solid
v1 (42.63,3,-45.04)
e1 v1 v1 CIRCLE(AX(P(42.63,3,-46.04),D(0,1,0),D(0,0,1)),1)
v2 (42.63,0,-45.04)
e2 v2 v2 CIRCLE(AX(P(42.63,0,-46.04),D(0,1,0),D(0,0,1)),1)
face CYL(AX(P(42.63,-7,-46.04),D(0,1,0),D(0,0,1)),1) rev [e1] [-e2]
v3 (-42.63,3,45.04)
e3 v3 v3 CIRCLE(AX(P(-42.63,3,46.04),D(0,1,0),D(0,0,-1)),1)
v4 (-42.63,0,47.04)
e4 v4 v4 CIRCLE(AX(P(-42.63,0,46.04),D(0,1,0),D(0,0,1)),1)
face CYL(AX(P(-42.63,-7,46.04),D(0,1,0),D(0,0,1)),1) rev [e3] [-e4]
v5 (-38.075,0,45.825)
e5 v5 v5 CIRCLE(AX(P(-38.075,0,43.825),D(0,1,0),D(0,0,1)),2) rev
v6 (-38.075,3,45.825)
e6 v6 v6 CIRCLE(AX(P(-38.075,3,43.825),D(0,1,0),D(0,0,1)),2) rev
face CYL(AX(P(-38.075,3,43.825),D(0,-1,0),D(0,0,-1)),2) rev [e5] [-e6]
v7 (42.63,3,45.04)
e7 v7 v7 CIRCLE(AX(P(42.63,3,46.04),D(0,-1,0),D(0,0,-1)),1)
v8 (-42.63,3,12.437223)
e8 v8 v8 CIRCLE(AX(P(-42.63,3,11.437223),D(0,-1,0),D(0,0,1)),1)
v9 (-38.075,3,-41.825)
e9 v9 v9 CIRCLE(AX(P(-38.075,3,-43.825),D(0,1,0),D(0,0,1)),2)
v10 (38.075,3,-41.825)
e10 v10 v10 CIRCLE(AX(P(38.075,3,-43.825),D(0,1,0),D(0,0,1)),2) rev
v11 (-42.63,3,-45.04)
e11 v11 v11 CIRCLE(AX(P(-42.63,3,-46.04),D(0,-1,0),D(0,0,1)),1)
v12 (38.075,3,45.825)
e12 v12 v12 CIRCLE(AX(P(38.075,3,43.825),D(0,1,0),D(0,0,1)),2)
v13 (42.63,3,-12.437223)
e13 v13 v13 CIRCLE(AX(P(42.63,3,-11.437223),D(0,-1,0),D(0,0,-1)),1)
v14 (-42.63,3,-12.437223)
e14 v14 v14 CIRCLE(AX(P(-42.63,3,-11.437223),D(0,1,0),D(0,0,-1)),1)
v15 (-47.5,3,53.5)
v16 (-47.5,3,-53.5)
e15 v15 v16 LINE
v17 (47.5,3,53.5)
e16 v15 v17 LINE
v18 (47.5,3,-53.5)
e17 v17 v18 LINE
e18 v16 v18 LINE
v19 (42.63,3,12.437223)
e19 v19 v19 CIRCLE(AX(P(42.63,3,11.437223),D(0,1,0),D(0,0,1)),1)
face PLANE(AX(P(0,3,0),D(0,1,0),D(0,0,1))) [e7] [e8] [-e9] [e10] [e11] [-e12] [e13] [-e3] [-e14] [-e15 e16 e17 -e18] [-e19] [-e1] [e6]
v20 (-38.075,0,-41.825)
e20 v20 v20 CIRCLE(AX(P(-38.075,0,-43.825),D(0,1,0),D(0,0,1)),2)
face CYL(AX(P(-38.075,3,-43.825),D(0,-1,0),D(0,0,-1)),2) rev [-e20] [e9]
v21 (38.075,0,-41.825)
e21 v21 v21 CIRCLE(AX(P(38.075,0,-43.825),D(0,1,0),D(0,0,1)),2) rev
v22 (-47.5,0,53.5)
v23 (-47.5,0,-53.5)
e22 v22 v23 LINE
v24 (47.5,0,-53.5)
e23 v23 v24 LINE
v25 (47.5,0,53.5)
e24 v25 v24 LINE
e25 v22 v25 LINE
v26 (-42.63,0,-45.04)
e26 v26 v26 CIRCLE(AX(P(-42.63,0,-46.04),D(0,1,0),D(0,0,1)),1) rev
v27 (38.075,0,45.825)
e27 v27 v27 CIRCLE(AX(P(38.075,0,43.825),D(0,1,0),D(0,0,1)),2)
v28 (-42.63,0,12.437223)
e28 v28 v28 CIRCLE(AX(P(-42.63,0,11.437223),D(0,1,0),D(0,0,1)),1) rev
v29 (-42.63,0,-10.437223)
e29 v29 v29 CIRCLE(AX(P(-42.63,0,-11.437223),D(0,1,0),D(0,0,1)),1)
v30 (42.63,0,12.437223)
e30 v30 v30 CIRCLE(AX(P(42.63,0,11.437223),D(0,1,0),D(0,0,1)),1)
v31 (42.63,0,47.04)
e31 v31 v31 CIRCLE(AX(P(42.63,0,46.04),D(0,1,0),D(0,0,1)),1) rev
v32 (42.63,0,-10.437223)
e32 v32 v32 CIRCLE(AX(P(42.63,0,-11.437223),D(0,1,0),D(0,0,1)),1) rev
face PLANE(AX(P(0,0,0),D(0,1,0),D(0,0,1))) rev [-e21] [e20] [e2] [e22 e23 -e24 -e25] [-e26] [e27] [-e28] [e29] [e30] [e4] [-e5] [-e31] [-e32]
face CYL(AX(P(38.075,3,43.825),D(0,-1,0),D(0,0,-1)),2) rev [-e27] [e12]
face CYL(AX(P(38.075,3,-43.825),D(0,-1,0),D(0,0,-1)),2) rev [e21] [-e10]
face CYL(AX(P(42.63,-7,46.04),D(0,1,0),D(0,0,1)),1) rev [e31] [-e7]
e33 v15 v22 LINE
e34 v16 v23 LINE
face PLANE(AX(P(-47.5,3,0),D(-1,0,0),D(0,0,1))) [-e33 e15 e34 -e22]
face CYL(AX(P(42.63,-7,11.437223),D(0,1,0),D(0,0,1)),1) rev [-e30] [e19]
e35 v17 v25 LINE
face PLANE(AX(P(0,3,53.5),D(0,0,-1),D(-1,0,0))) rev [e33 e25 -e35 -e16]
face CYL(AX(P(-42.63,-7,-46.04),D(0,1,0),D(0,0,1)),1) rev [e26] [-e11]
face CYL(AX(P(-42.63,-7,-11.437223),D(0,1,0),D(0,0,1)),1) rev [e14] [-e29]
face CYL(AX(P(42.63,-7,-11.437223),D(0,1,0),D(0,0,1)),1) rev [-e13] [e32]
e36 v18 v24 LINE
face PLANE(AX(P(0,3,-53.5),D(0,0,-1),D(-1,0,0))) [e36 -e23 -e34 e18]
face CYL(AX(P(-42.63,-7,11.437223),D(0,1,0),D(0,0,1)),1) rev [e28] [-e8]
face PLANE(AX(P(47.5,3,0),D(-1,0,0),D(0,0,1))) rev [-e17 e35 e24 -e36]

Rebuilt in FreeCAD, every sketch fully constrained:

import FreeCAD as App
import Part
import Sketcher

doc = App.newDocument("Part")
body = doc.addObject("PartDesign::Body", "Body")

# Sketch on XZ plane
sketch1 = body.newObject("Sketcher::SketchObject", "Sketch")
sketch1.AttachmentSupport = (doc.getObject("XZ_Plane"), [""])
sketch1.MapMode = "FlatFace"
sketch1.addGeometry(Part.LineSegment(App.Vector(-47.5, -53.5, 0), App.Vector(-47.5, 53.5, 0)), False)
sketch1.addGeometry(Part.LineSegment(App.Vector(-47.5, 53.5, 0), App.Vector(47.5, 53.5, 0)), False)
sketch1.addGeometry(Part.LineSegment(App.Vector(47.5, 53.5, 0), App.Vector(47.5, -53.5, 0)), False)
sketch1.addGeometry(Part.LineSegment(App.Vector(47.5, -53.5, 0), App.Vector(-47.5, -53.5, 0)), False)
sketch1.addGeometry(Part.Circle(App.Vector(-38.1, 43.8, 0), App.Vector(0, 0, 1), 2), False)
sketch1.addGeometry(Part.Circle(App.Vector(38.1, 43.8, 0), App.Vector(0, 0, 1), 2), False)
sketch1.addGeometry(Part.Circle(App.Vector(-38.1, -43.8, 0), App.Vector(0, 0, 1), 2), False)
sketch1.addGeometry(Part.Circle(App.Vector(38.1, -43.8, 0), App.Vector(0, 0, 1), 2), False)
sketch1.addConstraint(Sketcher.Constraint("Coincident", 0, 2, 1, 1))
sketch1.addConstraint(Sketcher.Constraint("Coincident", 1, 2, 2, 1))
sketch1.addConstraint(Sketcher.Constraint("Coincident", 2, 2, 3, 1))
sketch1.addConstraint(Sketcher.Constraint("Coincident", 3, 2, 0, 1))
sketch1.addConstraint(Sketcher.Constraint("Vertical", 0))
sketch1.addConstraint(Sketcher.Constraint("Horizontal", 1))
sketch1.addConstraint(Sketcher.Constraint("Vertical", 2))
sketch1.addConstraint(Sketcher.Constraint("Horizontal", 3))
sketch1.addConstraint(Sketcher.Constraint("Equal", 4, 5))
sketch1.addConstraint(Sketcher.Constraint("Equal", 5, 6))
sketch1.addConstraint(Sketcher.Constraint("Equal", 6, 7))
sketch1.addConstraint(Sketcher.Constraint("Symmetric", 5, 3, 6, 3, -1, 1))
sketch1.addConstraint(Sketcher.Constraint("Symmetric", 4, 3, 7, 3, -1, 1))
sketch1.addConstraint(Sketcher.Constraint("Symmetric", 0, 2, 2, 2, -1, 1))
sketch1.addConstraint(Sketcher.Constraint("Symmetric", 4, 3, 5, 3, -2))
sketch1.addConstraint(Sketcher.Constraint("Diameter", 4, 4.0))
sketch1.addConstraint(Sketcher.Constraint("DistanceX", 1, 1, 1, 2, 95.0))
sketch1.addConstraint(Sketcher.Constraint("DistanceY", 0, 1, 0, 2, 107.0))
sketch1.addConstraint(Sketcher.Constraint("DistanceX", 4, 3, 5, 3, 76.15))
sketch1.addConstraint(Sketcher.Constraint("DistanceY", 6, 3, 4, 3, 87.65))
pad1 = body.newObject("PartDesign::Pad", "Pad")
pad1.Profile = sketch1
pad1.Length = 3
pad1.Reversed = True

# Sketch on XZ plane
sketch2 = body.newObject("Sketcher::SketchObject", "Sketch001")
sketch2.AttachmentSupport = (doc.getObject("XZ_Plane"), [""])
sketch2.MapMode = "FlatFace"
sketch2.AttachmentOffset = App.Placement(App.Vector(0, 0, -3), App.Rotation())
sketch2.addGeometry(Part.Circle(App.Vector(42.6, -46, 0), App.Vector(0, 0, 1), 1), False)
sketch2.addConstraint(Sketcher.Constraint("Diameter", 0, 2.0))
sketch2.addConstraint(Sketcher.Constraint("DistanceX", -1, 1, 0, 3, 42.63))
sketch2.addConstraint(Sketcher.Constraint("DistanceY", 0, 3, -1, 1, 46.04))
pocket1 = body.newObject("PartDesign::Pocket", "Pocket")
pocket1.Profile = sketch2
pocket1.Length = 10
pocket1.Reversed = True
doc.recompute()

datumplane = body.newObject("PartDesign::Plane", "DatumPlane")
datumplane.AttachmentSupport = (doc.getObject("XY_Plane"), [""])
datumplane.MapMode = "FlatFace"
datumplane.AttachmentOffset = App.Placement(App.Vector(0, 0, -28.738611), App.Rotation())
mirrored = body.newObject("PartDesign::Mirrored", "Mirrored")
mirrored.Originals = [pocket1]
mirrored.MirrorPlane = (datumplane, [""])
body.Tip = mirrored
doc.recompute()

mirrored2 = body.newObject("PartDesign::Mirrored", "Mirrored001")
mirrored2.Originals = [pocket1]
mirrored2.MirrorPlane = (doc.getObject("YZ_Plane"), [""])
body.Tip = mirrored2

# Sketch on XZ plane
sketch3 = body.newObject("Sketcher::SketchObject", "Sketch002")
sketch3.AttachmentSupport = (doc.getObject("XZ_Plane"), [""])
sketch3.MapMode = "FlatFace"
sketch3.AttachmentOffset = App.Placement(App.Vector(0, 0, -3), App.Rotation())
sketch3.addGeometry(Part.Circle(App.Vector(-42.6, -11.4, 0), App.Vector(0, 0, 1), 1), False)
sketch3.addConstraint(Sketcher.Constraint("Diameter", 0, 2.0))
sketch3.addConstraint(Sketcher.Constraint("DistanceX", 0, 3, -1, 1, 42.63))
sketch3.addConstraint(Sketcher.Constraint("DistanceY", 0, 3, -1, 1, 11.437223))
pocket2 = body.newObject("PartDesign::Pocket", "Pocket001")
pocket2.Profile = sketch3
pocket2.Length = 10
pocket2.Reversed = True
doc.recompute()

mirrored3 = body.newObject("PartDesign::Mirrored", "Mirrored002")
mirrored3.Originals = [pocket1]
mirrored3.MirrorPlane = (doc.getObject("XY_Plane"), [""])
body.Tip = mirrored3

# Sketch on XZ plane
sketch4 = body.newObject("Sketcher::SketchObject", "Sketch003")
sketch4.AttachmentSupport = (doc.getObject("XZ_Plane"), [""])
sketch4.MapMode = "FlatFace"
sketch4.AttachmentOffset = App.Placement(App.Vector(0, 0, -3), App.Rotation())
sketch4.addGeometry(Part.Circle(App.Vector(42.6, 11.4, 0), App.Vector(0, 0, 1), 1), False)
sketch4.addConstraint(Sketcher.Constraint("Diameter", 0, 2.0))
sketch4.addConstraint(Sketcher.Constraint("DistanceX", -1, 1, 0, 3, 42.63))
sketch4.addConstraint(Sketcher.Constraint("DistanceY", -1, 1, 0, 3, 11.437223))
pocket3 = body.newObject("PartDesign::Pocket", "Pocket002")
pocket3.Profile = sketch4
pocket3.Length = 10
pocket3.Reversed = True

# Sketch on XZ plane
sketch5 = body.newObject("Sketcher::SketchObject", "Sketch004")
sketch5.AttachmentSupport = (doc.getObject("XZ_Plane"), [""])
sketch5.MapMode = "FlatFace"
sketch5.AttachmentOffset = App.Placement(App.Vector(0, 0, -3), App.Rotation())
sketch5.addGeometry(Part.Circle(App.Vector(-42.6, 46, 0), App.Vector(0, 0, 1), 1), False)
sketch5.addConstraint(Sketcher.Constraint("Diameter", 0, 2.0))
sketch5.addConstraint(Sketcher.Constraint("DistanceX", 0, 3, -1, 1, 42.63))
sketch5.addConstraint(Sketcher.Constraint("DistanceY", -1, 1, 0, 3, 46.04))
pocket4 = body.newObject("PartDesign::Pocket", "Pocket003")
pocket4.Profile = sketch5
pocket4.Length = 10
pocket4.Reversed = True

# Sketch on XZ plane
sketch6 = body.newObject("Sketcher::SketchObject", "Sketch005")
sketch6.AttachmentSupport = (doc.getObject("XZ_Plane"), [""])
sketch6.MapMode = "FlatFace"
sketch6.AttachmentOffset = App.Placement(App.Vector(0, 0, -3), App.Rotation())
sketch6.addGeometry(Part.Circle(App.Vector(-42.6, 11.4, 0), App.Vector(0, 0, 1), 1), False)
sketch6.addConstraint(Sketcher.Constraint("Diameter", 0, 2.0))
sketch6.addConstraint(Sketcher.Constraint("DistanceX", 0, 3, -1, 1, 42.63))
sketch6.addConstraint(Sketcher.Constraint("DistanceY", -1, 1, 0, 3, 11.437223))
pocket5 = body.newObject("PartDesign::Pocket", "Pocket004")
pocket5.Profile = sketch6
pocket5.Length = 10
pocket5.Reversed = True

doc.recompute()
